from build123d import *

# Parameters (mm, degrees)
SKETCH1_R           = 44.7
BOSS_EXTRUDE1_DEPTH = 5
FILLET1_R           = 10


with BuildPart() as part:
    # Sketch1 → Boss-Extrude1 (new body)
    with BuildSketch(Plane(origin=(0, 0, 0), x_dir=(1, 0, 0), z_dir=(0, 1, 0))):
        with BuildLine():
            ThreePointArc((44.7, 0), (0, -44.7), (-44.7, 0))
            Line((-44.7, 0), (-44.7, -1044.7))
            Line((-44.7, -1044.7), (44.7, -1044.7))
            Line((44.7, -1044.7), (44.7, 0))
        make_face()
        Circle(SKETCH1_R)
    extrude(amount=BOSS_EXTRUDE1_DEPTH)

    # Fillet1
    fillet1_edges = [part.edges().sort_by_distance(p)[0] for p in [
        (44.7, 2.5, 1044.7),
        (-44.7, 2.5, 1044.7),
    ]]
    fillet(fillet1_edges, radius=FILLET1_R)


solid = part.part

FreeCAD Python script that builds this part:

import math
import FreeCAD as App
import Part
import Sketcher


def edges_at(feature, points):
    """Names of the edges that pass closest to the given points."""
    edges = feature.Shape.Edges
    near = lambda p: min(range(len(edges)), key=lambda i: edges[i].distToShape(Part.Vertex(*p))[0])
    return sorted({f"Edge{near(p) + 1}" for p in points})

doc = App.newDocument("Part")
body = doc.addObject("PartDesign::Body", "Body")

sketch1 = body.newObject("Sketcher::SketchObject", "Sketch")
sketch1.AttachmentSupport = (doc.getObject("XZ_Plane"), [""])
sketch1.MapMode = "FlatFace"
sketch1.addGeometry(Part.LineSegment(App.Vector(-44.7, 0, 0), App.Vector(-44.7, 1044.7, 0)), False)
sketch1.addGeometry(Part.LineSegment(App.Vector(-44.7, 1044.7, 0), App.Vector(44.7, 1044.7, 0)), False)
sketch1.addGeometry(Part.LineSegment(App.Vector(44.7, 1044.7, 0), App.Vector(44.7, 0, 0)), False)
sketch1.addGeometry(Part.ArcOfCircle(Part.Circle(App.Vector(0, 0, 0), App.Vector(0, 0, 1), 44.7), math.radians(180), math.radians(360)), False)
sketch1.addConstraint(Sketcher.Constraint("Coincident", 0, 2, 1, 1))
sketch1.addConstraint(Sketcher.Constraint("Coincident", 1, 2, 2, 1))
sketch1.addConstraint(Sketcher.Constraint("Tangent", 2, 2, 3, 2))
sketch1.addConstraint(Sketcher.Constraint("Tangent", 3, 1, 0, 1))
sketch1.addConstraint(Sketcher.Constraint("Vertical", 0))
sketch1.addConstraint(Sketcher.Constraint("Horizontal", 1))
sketch1.addConstraint(Sketcher.Constraint("Vertical", 2))
sketch1.addConstraint(Sketcher.Constraint("Coincident", 3, 3, -1, 1))
sketch1.addConstraint(Sketcher.Constraint("Radius", 3, 44.7))
sketch1.addConstraint(Sketcher.Constraint("DistanceY", 0, 1, 0, 2, 1044.7))
pad1 = body.newObject("PartDesign::Pad", "Pad")
pad1.Profile = sketch1
pad1.Length = 5
pad1.Reversed = True
doc.recompute()

fillet = body.newObject("PartDesign::Fillet", "Fillet")
fillet.Base = (pad1, edges_at(pad1, [(44.7, 2.5, 1044.7), (-44.7, 2.5, 1044.7)]))
fillet.Radius = 10

doc.recompute()
